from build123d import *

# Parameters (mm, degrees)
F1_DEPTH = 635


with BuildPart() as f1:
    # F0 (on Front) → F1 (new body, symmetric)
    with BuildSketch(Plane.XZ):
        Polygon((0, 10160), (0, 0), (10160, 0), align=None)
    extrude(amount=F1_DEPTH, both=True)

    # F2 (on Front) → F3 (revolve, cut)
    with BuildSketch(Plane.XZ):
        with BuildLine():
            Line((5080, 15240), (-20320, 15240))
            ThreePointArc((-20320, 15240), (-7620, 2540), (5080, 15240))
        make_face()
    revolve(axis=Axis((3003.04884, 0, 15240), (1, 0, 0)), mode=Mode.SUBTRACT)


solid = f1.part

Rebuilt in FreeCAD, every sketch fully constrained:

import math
import FreeCAD as App
import Part
import Sketcher

V = App.Vector
Q = App.Units.Quantity

doc = App.newDocument("Part")
body = doc.addObject("PartDesign::Body", "Body")

# Sketch on XZ plane
sketch1 = doc.addObject("Sketcher::SketchObject", "Sketch")
body.addObject(sketch1)
sketch1.AttachmentSupport = (doc.XZ_Plane, [""])
sketch1.MapMode = "FlatFace"
sketch1.addGeometry([
    Part.LineSegment(V(0, 10160, 0), V(0, 0, 0)),
    Part.LineSegment(V(0, 0, 0), V(10160, 0, 0)),
    Part.LineSegment(V(10160, 0, 0), V(0, 10160, 0)),
], False)
sketch1.addConstraint([
    Sketcher.Constraint("Coincident", 0, 2, 1, 1),
    Sketcher.Constraint("Coincident", 1, 2, 2, 1),
    Sketcher.Constraint("Coincident", 2, 2, 0, 1),
    Sketcher.Constraint("Vertical", 0),
    Sketcher.Constraint("Horizontal", 1),
    Sketcher.Constraint("Coincident", 0, 2, -1, 1),
    Sketcher.Constraint("Equal", 1, 0),
    Sketcher.Constraint("DistanceX", 1, 1, 1, 2, Q("400 in")),
])
pad1 = doc.addObject("PartDesign::Pad", "Pad")
body.addObject(pad1)
pad1.Profile = sketch1
pad1.Length = Q("50 in")
pad1.Midplane = True

# Sketch on XZ plane
sketch2 = doc.addObject("Sketcher::SketchObject", "Sketch001")
body.addObject(sketch2)
sketch2.AttachmentSupport = (doc.XZ_Plane, [""])
sketch2.MapMode = "FlatFace"
sketch2.addGeometry([
    Part.LineSegment(V(5080, 15240, 0), V(-20320, 15240, 0)),
    Part.ArcOfCircle(Part.Circle(V(-7620, 15240, 0), V(0, 0, 1), 12700), math.radians(180), math.radians(360)),
], False)
sketch2.addGeometry(Part.LineSegment(V(-20320, 15240, 0), V(5080, 15240, 0)), True)  # axis
sketch2.addConstraint([
    Sketcher.Constraint("Coincident", 0, 1, 1, 2),
    Sketcher.Constraint("Coincident", 1, 1, 0, 2),
    Sketcher.Constraint("Horizontal", 0),
    Sketcher.Constraint("Horizontal", 2),
    Sketcher.Constraint("Coincident", 2, 2, 0, 1),
    Sketcher.Constraint("Horizontal", 1, 3, 0, 1),
    Sketcher.Constraint("Equal", 0, 2),
    Sketcher.Constraint("Radius", 1, Q("500 in")),
    Sketcher.Constraint("DistanceX", 1, 3, -1, 1, Q("300 in")),
    Sketcher.Constraint("DistanceY", -1, 1, 1, 3, Q("600 in")),
])
groove = doc.addObject("PartDesign::Groove", "Groove")
body.addObject(groove)
groove.Profile = sketch2
groove.ReferenceAxis = (sketch2, ["Axis0"])
groove.Angle = 360

doc.recompute()
